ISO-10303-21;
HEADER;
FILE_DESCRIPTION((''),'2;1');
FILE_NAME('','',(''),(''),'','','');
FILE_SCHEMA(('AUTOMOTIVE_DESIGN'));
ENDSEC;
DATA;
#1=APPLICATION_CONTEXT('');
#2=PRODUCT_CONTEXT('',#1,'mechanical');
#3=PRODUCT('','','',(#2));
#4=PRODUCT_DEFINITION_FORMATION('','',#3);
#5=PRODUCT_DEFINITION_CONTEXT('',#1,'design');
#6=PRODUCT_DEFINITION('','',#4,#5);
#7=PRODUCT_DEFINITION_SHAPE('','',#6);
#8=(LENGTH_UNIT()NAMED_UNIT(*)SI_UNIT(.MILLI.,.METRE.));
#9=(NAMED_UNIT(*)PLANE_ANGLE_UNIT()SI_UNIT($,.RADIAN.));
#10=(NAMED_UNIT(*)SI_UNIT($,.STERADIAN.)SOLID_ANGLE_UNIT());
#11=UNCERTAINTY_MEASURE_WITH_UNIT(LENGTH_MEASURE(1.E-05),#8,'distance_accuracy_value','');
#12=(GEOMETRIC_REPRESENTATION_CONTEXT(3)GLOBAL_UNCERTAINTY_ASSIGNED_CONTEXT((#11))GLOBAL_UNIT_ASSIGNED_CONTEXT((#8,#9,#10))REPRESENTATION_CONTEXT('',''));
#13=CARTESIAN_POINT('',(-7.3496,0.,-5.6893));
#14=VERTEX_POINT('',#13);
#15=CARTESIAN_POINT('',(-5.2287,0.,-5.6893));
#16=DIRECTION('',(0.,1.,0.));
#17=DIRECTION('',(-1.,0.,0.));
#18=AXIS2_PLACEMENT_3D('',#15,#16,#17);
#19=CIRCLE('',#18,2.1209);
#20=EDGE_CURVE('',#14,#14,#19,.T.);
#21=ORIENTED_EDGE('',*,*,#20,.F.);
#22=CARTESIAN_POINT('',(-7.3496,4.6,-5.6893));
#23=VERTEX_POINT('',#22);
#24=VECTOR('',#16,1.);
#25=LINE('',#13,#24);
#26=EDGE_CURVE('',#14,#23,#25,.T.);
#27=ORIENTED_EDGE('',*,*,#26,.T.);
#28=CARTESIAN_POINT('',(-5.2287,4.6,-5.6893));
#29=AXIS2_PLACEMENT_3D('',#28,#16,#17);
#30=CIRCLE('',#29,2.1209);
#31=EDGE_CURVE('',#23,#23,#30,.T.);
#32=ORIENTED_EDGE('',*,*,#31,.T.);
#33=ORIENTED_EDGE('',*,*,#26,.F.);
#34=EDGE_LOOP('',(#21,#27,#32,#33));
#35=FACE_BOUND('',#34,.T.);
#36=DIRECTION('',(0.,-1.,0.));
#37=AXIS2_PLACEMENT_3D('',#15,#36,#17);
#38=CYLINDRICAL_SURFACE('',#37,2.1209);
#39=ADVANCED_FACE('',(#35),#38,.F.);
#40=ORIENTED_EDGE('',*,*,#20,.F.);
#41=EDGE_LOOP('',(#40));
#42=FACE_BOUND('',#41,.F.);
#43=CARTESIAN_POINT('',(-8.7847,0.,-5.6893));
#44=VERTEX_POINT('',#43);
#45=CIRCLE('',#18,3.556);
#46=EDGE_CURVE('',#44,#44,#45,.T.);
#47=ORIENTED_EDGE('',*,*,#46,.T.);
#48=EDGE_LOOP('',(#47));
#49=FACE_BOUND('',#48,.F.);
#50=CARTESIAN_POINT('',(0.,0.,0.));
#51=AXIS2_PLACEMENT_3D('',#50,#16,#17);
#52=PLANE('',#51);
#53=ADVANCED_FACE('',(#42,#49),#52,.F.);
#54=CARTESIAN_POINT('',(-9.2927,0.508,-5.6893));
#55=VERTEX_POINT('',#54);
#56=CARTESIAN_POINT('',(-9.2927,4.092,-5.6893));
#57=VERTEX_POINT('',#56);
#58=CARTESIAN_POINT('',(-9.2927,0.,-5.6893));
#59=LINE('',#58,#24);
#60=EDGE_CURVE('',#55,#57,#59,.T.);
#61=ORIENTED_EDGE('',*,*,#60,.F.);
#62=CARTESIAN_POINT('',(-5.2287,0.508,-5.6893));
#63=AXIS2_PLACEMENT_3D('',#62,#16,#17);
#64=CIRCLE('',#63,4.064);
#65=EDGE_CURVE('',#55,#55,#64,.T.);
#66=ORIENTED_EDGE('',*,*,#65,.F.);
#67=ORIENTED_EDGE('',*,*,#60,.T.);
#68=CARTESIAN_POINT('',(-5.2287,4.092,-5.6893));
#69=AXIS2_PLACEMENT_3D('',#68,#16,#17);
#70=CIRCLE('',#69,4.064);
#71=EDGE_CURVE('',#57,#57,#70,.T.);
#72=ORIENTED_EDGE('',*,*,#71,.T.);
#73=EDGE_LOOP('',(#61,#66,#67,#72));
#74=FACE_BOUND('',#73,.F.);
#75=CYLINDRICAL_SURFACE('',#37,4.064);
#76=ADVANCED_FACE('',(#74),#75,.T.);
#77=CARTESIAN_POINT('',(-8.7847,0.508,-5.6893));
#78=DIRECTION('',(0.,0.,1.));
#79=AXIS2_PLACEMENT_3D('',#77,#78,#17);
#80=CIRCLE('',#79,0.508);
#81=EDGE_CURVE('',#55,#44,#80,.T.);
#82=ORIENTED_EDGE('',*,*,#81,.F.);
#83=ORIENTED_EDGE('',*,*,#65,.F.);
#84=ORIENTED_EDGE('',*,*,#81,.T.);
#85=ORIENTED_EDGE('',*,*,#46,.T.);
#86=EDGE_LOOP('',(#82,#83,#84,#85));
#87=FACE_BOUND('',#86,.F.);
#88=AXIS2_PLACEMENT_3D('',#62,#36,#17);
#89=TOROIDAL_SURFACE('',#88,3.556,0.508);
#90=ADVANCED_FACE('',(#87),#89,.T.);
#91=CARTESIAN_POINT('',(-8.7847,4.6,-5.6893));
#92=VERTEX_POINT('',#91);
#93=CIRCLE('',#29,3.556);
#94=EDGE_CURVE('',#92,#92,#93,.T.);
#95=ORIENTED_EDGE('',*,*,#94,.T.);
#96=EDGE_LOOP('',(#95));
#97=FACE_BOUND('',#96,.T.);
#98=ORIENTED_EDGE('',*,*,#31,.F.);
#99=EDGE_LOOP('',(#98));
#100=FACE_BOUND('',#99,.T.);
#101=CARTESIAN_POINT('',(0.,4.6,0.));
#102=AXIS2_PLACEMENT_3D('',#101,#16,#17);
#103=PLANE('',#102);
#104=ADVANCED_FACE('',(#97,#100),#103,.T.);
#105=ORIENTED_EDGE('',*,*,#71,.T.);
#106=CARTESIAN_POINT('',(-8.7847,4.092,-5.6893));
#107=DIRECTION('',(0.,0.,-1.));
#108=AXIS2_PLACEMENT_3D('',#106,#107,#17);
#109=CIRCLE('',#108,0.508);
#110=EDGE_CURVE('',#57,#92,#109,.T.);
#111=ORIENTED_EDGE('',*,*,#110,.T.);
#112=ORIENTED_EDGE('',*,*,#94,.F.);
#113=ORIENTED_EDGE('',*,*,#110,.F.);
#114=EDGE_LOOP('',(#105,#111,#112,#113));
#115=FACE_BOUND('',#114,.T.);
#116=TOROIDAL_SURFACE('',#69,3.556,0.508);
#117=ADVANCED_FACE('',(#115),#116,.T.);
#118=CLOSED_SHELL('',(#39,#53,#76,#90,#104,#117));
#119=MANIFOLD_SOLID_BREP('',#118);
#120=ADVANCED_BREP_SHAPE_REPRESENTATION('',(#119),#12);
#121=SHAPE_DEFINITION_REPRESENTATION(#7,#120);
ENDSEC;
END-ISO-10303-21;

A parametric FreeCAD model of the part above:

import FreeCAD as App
import Part
import Sketcher

V = App.Vector
Q = App.Units.Quantity


def edges_at(feature, points):
    """Names of the edges that pass closest to the given points."""
    edges = feature.Shape.Edges
    near = lambda p: min(range(len(edges)), key=lambda i: edges[i].distToShape(Part.Vertex(*p))[0])
    return sorted({f"Edge{near(p) + 1}" for p in points})

doc = App.newDocument("Part")
body = doc.addObject("PartDesign::Body", "Body")

# Sketch on XZ plane
sketch1 = body.newObject("Sketcher::SketchObject", "Sketch")
sketch1.AttachmentSupport = (doc.getObject("XZ_Plane"), [""])
sketch1.MapMode = "FlatFace"
sketch1.addGeometry([
    Part.Circle(V(-5.2, -5.7, 0), V(0, 0, 1), 4.1),
    Part.Circle(V(-5.2, -5.7, 0), V(0, 0, 1), 2.1),
], False)
sketch1.addConstraint([
    Sketcher.Constraint("Coincident", 1, 3, 0, 3),
    Sketcher.Constraint("Diameter", 0, Q("0.32 in")),
    Sketcher.Constraint("Diameter", 1, Q("0.167 in")),
    Sketcher.Constraint("DistanceY", 0, 3, -1, 1, Q("0.224 in")),
    Sketcher.Constraint("DistanceX", 0, 3, -1, 1, Q("5.2287 mm")),
])
pad1 = body.newObject("PartDesign::Pad", "Pad")
pad1.Profile = sketch1
pad1.Length = Q("0.1811024 in")
pad1.Reversed = True
doc.recompute()

fillet = body.newObject("PartDesign::Fillet", "Fillet")
fillet.Base = (pad1, edges_at(pad1, [(-1.165, 4.6, -5.689), (-1.165, 0, -5.689)]))
fillet.Radius = Q("0.02 in")

doc.recompute()
